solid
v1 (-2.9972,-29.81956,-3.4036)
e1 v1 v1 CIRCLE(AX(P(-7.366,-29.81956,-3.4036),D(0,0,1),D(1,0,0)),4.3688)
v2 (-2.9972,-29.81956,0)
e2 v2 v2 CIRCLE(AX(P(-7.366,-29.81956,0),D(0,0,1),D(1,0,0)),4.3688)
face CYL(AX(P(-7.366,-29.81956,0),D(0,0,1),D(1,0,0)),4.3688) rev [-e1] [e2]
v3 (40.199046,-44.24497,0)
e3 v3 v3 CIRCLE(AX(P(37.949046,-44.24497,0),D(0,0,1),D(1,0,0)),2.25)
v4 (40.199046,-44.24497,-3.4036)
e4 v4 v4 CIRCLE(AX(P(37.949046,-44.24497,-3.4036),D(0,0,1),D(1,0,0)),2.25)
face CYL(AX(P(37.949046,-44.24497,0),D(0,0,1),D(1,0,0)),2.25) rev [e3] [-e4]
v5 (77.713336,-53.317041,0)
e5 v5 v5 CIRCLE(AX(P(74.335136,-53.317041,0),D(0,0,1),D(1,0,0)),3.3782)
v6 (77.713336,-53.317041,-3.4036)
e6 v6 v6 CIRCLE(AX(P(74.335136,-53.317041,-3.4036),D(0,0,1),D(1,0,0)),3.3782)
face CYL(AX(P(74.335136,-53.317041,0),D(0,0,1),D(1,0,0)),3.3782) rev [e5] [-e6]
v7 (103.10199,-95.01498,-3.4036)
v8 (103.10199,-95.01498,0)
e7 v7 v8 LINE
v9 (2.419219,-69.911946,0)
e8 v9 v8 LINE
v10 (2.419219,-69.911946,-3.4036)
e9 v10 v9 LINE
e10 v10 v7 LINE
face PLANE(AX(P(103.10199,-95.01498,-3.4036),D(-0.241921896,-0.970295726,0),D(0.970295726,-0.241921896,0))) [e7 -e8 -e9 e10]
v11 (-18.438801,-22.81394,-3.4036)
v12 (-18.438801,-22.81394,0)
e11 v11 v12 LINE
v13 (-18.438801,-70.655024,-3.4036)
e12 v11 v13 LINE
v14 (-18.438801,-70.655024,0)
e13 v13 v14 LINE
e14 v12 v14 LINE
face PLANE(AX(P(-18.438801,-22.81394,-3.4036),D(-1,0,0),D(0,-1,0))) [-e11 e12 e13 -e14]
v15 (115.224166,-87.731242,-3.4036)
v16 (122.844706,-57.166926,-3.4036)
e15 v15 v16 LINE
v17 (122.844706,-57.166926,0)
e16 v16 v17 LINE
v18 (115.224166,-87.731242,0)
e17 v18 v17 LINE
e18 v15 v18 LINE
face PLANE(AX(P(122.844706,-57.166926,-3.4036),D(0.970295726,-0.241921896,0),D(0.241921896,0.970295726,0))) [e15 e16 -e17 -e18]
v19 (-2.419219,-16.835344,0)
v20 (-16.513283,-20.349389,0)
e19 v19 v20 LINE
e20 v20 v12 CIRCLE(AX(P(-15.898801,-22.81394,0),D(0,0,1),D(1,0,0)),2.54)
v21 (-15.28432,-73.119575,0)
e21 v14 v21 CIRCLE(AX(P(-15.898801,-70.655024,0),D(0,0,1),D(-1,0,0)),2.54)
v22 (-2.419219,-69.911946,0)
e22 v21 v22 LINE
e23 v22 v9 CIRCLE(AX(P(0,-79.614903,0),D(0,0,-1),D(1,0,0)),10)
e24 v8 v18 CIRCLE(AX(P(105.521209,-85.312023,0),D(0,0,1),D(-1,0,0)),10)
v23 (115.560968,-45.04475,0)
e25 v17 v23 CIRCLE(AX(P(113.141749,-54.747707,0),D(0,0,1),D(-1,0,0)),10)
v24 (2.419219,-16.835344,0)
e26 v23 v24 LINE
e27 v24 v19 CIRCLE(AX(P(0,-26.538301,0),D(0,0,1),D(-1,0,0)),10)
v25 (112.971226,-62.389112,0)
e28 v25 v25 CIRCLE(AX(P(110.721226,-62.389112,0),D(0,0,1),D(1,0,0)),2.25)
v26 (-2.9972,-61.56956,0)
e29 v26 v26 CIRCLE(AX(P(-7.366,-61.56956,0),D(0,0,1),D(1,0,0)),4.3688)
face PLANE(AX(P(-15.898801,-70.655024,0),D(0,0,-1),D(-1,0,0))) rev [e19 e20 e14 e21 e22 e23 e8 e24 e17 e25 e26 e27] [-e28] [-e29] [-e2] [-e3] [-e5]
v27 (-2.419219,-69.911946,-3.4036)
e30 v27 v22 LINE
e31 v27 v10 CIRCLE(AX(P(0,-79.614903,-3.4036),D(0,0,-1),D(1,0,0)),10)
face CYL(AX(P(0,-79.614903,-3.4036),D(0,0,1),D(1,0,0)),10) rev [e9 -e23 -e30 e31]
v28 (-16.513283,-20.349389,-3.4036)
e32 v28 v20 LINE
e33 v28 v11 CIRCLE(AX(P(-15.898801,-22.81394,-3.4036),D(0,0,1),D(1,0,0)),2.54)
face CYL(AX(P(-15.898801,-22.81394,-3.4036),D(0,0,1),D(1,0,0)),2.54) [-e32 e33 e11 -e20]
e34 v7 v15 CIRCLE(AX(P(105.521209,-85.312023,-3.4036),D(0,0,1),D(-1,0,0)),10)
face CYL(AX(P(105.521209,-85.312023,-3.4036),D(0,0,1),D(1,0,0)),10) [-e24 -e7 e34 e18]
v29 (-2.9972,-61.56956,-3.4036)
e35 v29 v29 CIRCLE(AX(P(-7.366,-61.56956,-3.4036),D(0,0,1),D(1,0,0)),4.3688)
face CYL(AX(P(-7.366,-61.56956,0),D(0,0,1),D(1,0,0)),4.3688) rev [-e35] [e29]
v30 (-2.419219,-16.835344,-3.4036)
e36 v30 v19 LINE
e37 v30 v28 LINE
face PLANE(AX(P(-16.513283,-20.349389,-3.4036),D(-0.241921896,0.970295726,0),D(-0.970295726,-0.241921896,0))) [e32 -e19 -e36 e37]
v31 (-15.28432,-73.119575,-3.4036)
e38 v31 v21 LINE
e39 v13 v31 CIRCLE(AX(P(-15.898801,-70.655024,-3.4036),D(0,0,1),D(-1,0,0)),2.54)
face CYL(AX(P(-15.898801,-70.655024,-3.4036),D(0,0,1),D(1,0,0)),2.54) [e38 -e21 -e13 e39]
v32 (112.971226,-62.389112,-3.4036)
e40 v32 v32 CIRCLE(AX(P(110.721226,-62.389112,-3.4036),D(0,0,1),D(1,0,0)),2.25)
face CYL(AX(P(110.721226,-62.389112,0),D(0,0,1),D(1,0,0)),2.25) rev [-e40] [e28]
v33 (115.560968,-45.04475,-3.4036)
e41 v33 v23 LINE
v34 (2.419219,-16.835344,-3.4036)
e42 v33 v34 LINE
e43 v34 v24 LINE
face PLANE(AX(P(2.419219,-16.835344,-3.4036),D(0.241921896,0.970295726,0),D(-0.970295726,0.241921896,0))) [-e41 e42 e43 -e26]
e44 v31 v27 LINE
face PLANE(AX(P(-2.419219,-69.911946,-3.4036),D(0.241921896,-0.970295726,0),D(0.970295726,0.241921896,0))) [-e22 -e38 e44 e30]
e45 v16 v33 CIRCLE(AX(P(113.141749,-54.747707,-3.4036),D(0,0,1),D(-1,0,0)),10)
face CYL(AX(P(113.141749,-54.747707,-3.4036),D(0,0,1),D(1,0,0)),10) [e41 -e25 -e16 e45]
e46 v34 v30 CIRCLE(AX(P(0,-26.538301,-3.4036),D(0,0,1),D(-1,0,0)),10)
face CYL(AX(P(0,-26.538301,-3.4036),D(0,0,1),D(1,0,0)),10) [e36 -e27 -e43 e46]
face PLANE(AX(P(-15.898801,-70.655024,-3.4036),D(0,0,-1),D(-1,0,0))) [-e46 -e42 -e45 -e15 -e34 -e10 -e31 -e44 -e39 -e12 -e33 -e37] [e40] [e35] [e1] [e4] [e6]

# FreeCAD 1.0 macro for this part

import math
import FreeCAD as App
import Part
import Sketcher

V = App.Vector
Q = App.Units.Quantity

doc = App.newDocument("Part")
body = doc.addObject("PartDesign::Body", "Body")

# Sketch on XY plane
sketch1 = body.newObject("Sketcher::SketchObject", "Sketch")
sketch1.AttachmentSupport = (doc.getObject("XY_Plane"), [""])
sketch1.MapMode = "FlatFace"
sketch1.addGeometry([
    Part.LineSegment(V(-2.4, -16.8, 0), V(-16.5, -20.3, 0)),  # 0
    Part.ArcOfCircle(Part.Circle(V(-15.9, -22.8, 0), V(0, 0, 1), 2.5), math.radians(104), math.radians(180)),  # 1
    Part.LineSegment(V(-18.4, -22.8, 0), V(-18.4, -70.7, 0)),  # 2
    Part.ArcOfCircle(Part.Circle(V(-15.9, -70.7, 0), V(0, 0, 1), 2.5), math.radians(-180), math.radians(-76)),  # 3
    Part.LineSegment(V(-15.3, -73.1, 0), V(-2.4, -69.9, 0)),  # 4
    Part.ArcOfCircle(Part.Circle(V(0, -79.6, 0), V(0, 0, 1), 10), math.radians(76), math.radians(104)),  # 5
    Part.LineSegment(V(2.4, -69.9, 0), V(103.1, -95, 0)),  # 6
    Part.ArcOfCircle(Part.Circle(V(105.5, -85.3, 0), V(0, 0, 1), 10), math.radians(-104), math.radians(-14)),  # 7
    Part.LineSegment(V(115.2, -87.7, 0), V(122.8, -57.2, 0)),  # 8
    Part.ArcOfCircle(Part.Circle(V(113.1, -54.7, 0), V(0, 0, 1), 10), math.radians(-14), math.radians(76)),  # 9
    Part.LineSegment(V(115.6, -45, 0), V(2.4, -16.8, 0)),  # 10
    Part.ArcOfCircle(Part.Circle(V(0, -26.5, 0), V(0, 0, 1), 10), math.radians(76), math.radians(104)),  # 11
], False)
sketch1.addConstraint([
    Sketcher.Constraint("Tangent", 0, 2, 1, 1),
    Sketcher.Constraint("Tangent", 1, 2, 2, 1),
    Sketcher.Constraint("Tangent", 2, 2, 3, 1),
    Sketcher.Constraint("Tangent", 3, 2, 4, 1),
    Sketcher.Constraint("Tangent", 4, 2, 5, 2),
    Sketcher.Constraint("Tangent", 5, 1, 6, 1),
    Sketcher.Constraint("Tangent", 6, 2, 7, 1),
    Sketcher.Constraint("Tangent", 7, 2, 8, 1),
    Sketcher.Constraint("Tangent", 8, 2, 9, 1),
    Sketcher.Constraint("Tangent", 9, 2, 10, 1),
    Sketcher.Constraint("Tangent", 10, 2, 11, 1),
    Sketcher.Constraint("Tangent", 11, 2, 0, 1),
    Sketcher.Constraint("Vertical", 2),
    Sketcher.Constraint("Equal", 1, 3),
    Sketcher.Constraint("Equal", 5, 7),
    Sketcher.Constraint("Equal", 7, 9),
    Sketcher.Constraint("Equal", 9, 11),
    Sketcher.Constraint("Symmetric", 4, 2, 5, 1, -2),
    Sketcher.Constraint("Symmetric", 10, 2, 11, 2, -2),
    Sketcher.Constraint("Parallel", 0, 4),
    Sketcher.Constraint("Perpendicular", 6, 8),
    Sketcher.Constraint("Radius", 1, Q("0.1 in")),
    Sketcher.Constraint("Angle", 0, Q("-166 deg")),
    Sketcher.Constraint("Radius", 5, Q("10 mm")),
    Sketcher.Constraint("DistanceX", 3, 2, 4, 2, Q("0.5065 in")),
    Sketcher.Constraint("Distance", 8, Q("31.5 mm")),
    Sketcher.Constraint("DistanceY", 11, 3, -1, 1, Q("26.538301 mm")),
    Sketcher.Constraint("DistanceY", 7, 3, 3, 3, Q("14.656998 mm")),
])
pad1 = body.newObject("PartDesign::Pad", "Pad")
pad1.Profile = sketch1
pad1.Length = Q("0.134 in")
pad1.Reversed = True

# Sketch on XY plane
sketch2 = body.newObject("Sketcher::SketchObject", "Sketch001")
sketch2.AttachmentSupport = (doc.getObject("XY_Plane"), [""])
sketch2.MapMode = "FlatFace"
sketch2.addGeometry(Part.Circle(V(74.3, -53.3, 0), V(0, 0, 1), 3.4), False)
sketch2.addConstraint([
    Sketcher.Constraint("Diameter", 0, Q("0.266 in")),
    Sketcher.Constraint("DistanceY", 0, 3, -1, 1, Q("53.317041 mm")),
    Sketcher.Constraint("DistanceX", -1, 1, 0, 3, Q("74.335136 mm")),
])
doc.recompute()
hole = body.newObject("PartDesign::Hole", "Hole")
hole.Profile = sketch2
hole.ThreadType = "None"
hole.Diameter = Q("0.266 in")
hole.DepthType = "ThroughAll"

# Sketch on XY plane
sketch3 = body.newObject("Sketcher::SketchObject", "Sketch002")
sketch3.AttachmentSupport = (doc.getObject("XY_Plane"), [""])
sketch3.MapMode = "FlatFace"
sketch3.addGeometry([
    Part.Circle(V(37.9, -44.2, 0), V(0, 0, 1), 2.2),
    Part.Circle(V(110.7, -62.4, 0), V(0, 0, 1), 2.2),
], False)
sketch3.addConstraint([
    Sketcher.Constraint("Equal", 0, 1),
    Sketcher.Constraint("Diameter", 0, Q("4.5 mm")),
    Sketcher.Constraint("DistanceY", 0, 3, -1, 1, Q("44.24497 mm")),
    Sketcher.Constraint("DistanceX", 0, 3, 1, 3, Q("72.772179 mm")),
    Sketcher.Constraint("DistanceX", -1, 1, 0, 3, Q("37.949046 mm")),
    Sketcher.Constraint("DistanceY", 1, 3, -1, 1, Q("62.389112 mm")),
])
doc.recompute()
hole2 = body.newObject("PartDesign::Hole", "Hole001")
hole2.Profile = sketch3
hole2.ThreadType = "None"
hole2.Diameter = 4.5
hole2.DepthType = "ThroughAll"

# Sketch on XY plane
sketch4 = body.newObject("Sketcher::SketchObject", "Sketch003")
sketch4.AttachmentSupport = (doc.getObject("XY_Plane"), [""])
sketch4.MapMode = "FlatFace"
sketch4.addGeometry([
    Part.Circle(V(-7.4, -61.6, 0), V(0, 0, 1), 4.4),
    Part.Circle(V(-7.4, -29.8, 0), V(0, 0, 1), 4.4),
], False)
sketch4.addConstraint([
    Sketcher.Constraint("Equal", 0, 1),
    Sketcher.Constraint("Vertical", 0, 3, 1, 3),
    Sketcher.Constraint("Diameter", 0, Q("0.344 in")),
    Sketcher.Constraint("DistanceX", 0, 3, -1, 1, Q("0.29 in")),
    Sketcher.Constraint("DistanceY", 0, 3, 1, 3, Q("1.25 in")),
    Sketcher.Constraint("DistanceY", 0, 3, -1, 1, Q("61.56956 mm")),
])
doc.recompute()
hole3 = body.newObject("PartDesign::Hole", "Hole002")
hole3.Profile = sketch4
hole3.ThreadType = "None"
hole3.Diameter = Q("0.344 in")
hole3.DepthType = "ThroughAll"

doc.recompute()
